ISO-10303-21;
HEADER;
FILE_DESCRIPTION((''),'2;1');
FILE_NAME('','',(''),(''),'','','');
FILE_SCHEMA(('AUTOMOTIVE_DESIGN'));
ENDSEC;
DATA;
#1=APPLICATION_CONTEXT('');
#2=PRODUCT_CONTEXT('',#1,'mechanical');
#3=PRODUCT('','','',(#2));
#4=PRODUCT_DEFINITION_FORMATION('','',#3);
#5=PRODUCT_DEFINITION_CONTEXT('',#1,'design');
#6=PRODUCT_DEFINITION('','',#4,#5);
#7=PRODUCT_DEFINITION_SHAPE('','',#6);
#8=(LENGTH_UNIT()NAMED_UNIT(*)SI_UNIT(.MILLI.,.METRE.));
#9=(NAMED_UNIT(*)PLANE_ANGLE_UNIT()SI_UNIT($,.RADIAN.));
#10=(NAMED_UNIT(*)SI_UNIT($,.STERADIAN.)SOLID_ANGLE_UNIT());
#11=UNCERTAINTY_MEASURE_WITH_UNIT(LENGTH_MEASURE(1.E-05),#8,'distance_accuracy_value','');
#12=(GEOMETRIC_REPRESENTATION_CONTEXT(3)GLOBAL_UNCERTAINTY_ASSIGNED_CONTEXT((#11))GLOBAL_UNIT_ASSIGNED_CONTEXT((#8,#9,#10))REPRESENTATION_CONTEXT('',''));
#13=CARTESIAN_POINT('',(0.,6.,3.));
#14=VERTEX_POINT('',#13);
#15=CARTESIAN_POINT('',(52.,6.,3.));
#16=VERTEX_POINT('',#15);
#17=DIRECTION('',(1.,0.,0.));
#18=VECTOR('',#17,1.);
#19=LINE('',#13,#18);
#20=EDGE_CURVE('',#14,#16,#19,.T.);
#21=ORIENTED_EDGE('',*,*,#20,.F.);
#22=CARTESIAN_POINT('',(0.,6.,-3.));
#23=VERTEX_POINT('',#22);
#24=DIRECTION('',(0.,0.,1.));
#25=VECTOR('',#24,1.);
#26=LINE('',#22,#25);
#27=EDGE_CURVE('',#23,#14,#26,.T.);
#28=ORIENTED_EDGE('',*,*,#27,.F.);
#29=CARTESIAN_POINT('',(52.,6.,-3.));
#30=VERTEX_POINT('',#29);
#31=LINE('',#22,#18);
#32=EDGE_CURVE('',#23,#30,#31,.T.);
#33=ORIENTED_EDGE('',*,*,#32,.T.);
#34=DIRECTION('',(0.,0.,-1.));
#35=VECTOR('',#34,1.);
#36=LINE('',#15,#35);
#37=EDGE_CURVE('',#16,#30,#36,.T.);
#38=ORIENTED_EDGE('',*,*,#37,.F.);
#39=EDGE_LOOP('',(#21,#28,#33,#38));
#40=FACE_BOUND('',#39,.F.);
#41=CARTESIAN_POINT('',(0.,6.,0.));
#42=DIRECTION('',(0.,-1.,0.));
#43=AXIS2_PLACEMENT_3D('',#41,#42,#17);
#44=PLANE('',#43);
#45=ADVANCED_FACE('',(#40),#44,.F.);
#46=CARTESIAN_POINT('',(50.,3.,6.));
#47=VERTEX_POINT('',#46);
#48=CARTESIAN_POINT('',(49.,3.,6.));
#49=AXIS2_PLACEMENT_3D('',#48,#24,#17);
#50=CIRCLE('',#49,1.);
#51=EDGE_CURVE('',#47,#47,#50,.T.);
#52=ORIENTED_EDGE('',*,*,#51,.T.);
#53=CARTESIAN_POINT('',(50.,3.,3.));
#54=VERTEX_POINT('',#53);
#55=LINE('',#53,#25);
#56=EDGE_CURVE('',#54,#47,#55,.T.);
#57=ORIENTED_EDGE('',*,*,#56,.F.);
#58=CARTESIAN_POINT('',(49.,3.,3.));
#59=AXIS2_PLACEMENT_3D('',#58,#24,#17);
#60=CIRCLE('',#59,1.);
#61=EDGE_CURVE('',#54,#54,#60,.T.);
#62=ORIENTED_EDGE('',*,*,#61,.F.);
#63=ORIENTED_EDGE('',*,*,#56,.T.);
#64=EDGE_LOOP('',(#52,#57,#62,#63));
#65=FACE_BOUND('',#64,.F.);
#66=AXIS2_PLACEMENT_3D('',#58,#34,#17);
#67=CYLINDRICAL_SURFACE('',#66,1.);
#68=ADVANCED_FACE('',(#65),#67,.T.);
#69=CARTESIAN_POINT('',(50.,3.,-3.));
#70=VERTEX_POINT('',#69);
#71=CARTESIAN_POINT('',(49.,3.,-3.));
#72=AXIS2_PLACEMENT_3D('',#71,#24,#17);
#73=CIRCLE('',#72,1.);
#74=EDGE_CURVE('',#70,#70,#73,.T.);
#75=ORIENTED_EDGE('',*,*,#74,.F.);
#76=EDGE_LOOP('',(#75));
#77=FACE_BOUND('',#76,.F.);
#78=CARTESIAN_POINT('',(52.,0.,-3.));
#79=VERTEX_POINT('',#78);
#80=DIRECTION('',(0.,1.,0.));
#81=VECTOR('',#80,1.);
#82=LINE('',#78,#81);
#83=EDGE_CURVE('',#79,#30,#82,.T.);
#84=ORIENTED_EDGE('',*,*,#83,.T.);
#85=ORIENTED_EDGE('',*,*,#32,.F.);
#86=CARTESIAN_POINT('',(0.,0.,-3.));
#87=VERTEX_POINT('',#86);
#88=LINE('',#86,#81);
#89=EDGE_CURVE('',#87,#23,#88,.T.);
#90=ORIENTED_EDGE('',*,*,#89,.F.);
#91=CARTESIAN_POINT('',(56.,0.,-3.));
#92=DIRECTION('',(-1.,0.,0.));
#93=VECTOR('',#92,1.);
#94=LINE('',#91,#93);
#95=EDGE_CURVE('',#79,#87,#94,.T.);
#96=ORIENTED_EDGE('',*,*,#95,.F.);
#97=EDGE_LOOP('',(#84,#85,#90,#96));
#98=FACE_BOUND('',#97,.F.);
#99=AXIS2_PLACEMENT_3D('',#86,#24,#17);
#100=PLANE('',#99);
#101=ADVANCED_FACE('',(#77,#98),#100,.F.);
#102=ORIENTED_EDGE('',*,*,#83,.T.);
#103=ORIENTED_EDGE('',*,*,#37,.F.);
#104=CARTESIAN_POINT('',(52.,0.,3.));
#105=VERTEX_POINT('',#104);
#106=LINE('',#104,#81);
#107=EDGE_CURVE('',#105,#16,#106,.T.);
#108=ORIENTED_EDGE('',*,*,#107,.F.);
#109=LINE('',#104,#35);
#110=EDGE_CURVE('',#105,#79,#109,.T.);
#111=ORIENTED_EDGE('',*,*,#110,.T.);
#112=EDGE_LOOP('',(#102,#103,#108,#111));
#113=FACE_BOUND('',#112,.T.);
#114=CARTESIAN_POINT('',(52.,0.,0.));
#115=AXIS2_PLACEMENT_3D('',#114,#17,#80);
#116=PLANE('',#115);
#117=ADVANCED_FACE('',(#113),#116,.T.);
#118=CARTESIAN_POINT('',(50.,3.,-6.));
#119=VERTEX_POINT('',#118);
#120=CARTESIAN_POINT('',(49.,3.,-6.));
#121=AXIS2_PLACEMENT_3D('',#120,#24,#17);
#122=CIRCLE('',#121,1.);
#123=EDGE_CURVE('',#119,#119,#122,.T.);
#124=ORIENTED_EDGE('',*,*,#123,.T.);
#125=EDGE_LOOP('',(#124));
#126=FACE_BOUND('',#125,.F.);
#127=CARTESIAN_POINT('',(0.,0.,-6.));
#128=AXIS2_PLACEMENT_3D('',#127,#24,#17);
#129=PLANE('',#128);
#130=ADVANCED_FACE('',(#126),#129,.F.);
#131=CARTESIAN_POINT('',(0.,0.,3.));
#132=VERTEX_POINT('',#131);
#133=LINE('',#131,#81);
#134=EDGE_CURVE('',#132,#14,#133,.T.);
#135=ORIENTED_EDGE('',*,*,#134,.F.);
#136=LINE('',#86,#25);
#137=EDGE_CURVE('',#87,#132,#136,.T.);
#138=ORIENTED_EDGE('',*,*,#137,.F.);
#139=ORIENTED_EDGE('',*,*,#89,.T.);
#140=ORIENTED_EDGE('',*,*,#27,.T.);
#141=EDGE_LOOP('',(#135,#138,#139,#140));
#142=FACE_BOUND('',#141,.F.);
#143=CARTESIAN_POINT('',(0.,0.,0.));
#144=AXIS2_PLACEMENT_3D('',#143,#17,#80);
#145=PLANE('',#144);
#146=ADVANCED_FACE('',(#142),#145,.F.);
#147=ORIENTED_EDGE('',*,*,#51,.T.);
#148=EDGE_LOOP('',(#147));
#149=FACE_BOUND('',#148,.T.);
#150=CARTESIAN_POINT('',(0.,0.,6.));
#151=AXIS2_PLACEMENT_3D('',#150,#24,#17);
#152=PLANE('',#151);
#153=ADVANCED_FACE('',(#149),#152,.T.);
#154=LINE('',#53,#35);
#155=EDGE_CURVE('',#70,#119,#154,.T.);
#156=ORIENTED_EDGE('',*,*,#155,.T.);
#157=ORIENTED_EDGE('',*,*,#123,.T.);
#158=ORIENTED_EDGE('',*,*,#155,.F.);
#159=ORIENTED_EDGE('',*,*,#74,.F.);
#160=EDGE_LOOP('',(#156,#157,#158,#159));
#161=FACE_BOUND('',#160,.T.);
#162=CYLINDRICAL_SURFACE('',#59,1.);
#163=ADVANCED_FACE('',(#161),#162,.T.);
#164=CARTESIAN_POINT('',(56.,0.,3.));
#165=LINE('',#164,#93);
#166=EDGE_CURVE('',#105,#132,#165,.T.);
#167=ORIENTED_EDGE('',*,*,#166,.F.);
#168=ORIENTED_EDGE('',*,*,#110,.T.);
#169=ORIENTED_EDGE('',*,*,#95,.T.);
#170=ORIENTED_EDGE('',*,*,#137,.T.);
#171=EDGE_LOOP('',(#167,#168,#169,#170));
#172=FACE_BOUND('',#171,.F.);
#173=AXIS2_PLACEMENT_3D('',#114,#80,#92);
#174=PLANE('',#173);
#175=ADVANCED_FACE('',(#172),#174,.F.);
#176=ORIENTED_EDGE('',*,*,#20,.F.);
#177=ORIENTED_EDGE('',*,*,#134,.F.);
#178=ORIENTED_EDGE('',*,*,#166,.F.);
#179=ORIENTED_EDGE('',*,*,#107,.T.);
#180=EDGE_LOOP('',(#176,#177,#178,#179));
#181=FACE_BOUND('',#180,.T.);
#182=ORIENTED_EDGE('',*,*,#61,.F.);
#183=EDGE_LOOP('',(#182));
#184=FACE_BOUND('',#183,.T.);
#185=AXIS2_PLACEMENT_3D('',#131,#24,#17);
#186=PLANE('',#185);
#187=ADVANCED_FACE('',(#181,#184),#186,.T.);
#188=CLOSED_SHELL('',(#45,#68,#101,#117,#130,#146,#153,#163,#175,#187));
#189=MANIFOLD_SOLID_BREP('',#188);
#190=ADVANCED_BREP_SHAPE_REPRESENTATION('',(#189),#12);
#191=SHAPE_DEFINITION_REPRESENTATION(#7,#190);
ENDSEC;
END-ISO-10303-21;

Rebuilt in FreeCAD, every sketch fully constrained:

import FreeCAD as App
import Part
import Sketcher

V = App.Vector


def add_polygon(sketch, points):
    """Adds a closed chain of lines whose ends are joined by coincident constraints."""
    first, n = sketch.GeometryCount, len(points)
    for a, b in zip(points, points[1:] + points[:1]):
        sketch.addGeometry(Part.LineSegment(App.Vector(*a, 0), App.Vector(*b, 0)), False)
    for i in range(n):
        sketch.addConstraint(Sketcher.Constraint("Coincident", first + i, 2, first + (i + 1) % n, 1))

doc = App.newDocument("Part")
body = doc.addObject("PartDesign::Body", "Body")

# Sketch on XY plane
sketch1 = body.newObject("Sketcher::SketchObject", "Sketch")
sketch1.AttachmentSupport = (doc.getObject("XY_Plane"), [""])
sketch1.MapMode = "FlatFace"
add_polygon(sketch1, [(52, 6), (0, 6), (0, 0), (52, 0)])  # lines 0-3
sketch1.addConstraint([
    Sketcher.Constraint("Horizontal", 0),
    Sketcher.Constraint("Vertical", 1),
    Sketcher.Constraint("Horizontal", 2),
    Sketcher.Constraint("Vertical", 3),
    Sketcher.Constraint("Coincident", 1, 2, -1, 1),
    Sketcher.Constraint("DistanceX", 0, 2, 0, 1, 52.0),
    Sketcher.Constraint("DistanceY", 1, 2, 1, 1, 6.0),
])
pad1 = body.newObject("PartDesign::Pad", "Pad")
pad1.Profile = sketch1
pad1.Length = 6
pad1.Midplane = True

# Sketch on XY plane
sketch2 = body.newObject("Sketcher::SketchObject", "Sketch001")
sketch2.AttachmentSupport = (doc.getObject("XY_Plane"), [""])
sketch2.MapMode = "FlatFace"
sketch2.AttachmentOffset = App.Placement(V(0, 0, 3), App.Rotation())
sketch2.addGeometry(Part.Circle(V(49, 3, 0), V(0, 0, 1), 1), False)
sketch2.addConstraint([
    Sketcher.Constraint("Diameter", 0, 2.0),
    Sketcher.Constraint("DistanceY", -1, 1, 0, 3, 3.0),
    Sketcher.Constraint("DistanceX", -1, 1, 0, 3, 49.0),
])
pad2 = body.newObject("PartDesign::Pad", "Pad001")
pad2.Profile = sketch2
pad2.Type = "TwoLengths"
pad2.Length = 3
pad2.Length2 = 9

doc.recompute()
